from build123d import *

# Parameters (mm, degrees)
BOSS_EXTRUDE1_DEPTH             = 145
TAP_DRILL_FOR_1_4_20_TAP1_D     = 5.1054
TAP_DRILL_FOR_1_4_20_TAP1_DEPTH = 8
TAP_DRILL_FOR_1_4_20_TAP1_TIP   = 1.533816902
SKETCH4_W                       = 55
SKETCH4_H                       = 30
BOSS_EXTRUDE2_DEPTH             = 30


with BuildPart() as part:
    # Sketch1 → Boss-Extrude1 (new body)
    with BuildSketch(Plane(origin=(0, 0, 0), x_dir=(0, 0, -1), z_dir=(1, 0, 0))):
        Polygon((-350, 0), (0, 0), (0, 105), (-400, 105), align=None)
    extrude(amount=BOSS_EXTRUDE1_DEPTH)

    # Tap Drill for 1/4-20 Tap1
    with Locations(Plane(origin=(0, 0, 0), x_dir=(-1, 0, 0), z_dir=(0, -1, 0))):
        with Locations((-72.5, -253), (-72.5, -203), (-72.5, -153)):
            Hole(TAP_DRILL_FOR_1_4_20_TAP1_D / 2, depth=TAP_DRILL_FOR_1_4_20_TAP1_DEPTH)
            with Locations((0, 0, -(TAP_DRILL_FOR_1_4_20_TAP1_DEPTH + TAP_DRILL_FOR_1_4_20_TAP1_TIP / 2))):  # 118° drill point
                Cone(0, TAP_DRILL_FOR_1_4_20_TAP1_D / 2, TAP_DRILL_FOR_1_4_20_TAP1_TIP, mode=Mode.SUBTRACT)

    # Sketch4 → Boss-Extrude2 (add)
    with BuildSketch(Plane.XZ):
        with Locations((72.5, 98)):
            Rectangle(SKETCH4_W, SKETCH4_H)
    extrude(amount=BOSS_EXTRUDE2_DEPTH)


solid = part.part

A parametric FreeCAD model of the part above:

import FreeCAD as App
import Part
import Sketcher


def add_polygon(sketch, points):
    """Adds a closed chain of lines whose ends are joined by coincident constraints."""
    first, n = sketch.GeometryCount, len(points)
    for a, b in zip(points, points[1:] + points[:1]):
        sketch.addGeometry(Part.LineSegment(App.Vector(*a, 0), App.Vector(*b, 0)), False)
    for i in range(n):
        sketch.addConstraint(Sketcher.Constraint("Coincident", first + i, 2, first + (i + 1) % n, 1))

doc = App.newDocument("Part")
body = doc.addObject("PartDesign::Body", "Body")

# Sketch on YZ plane
sketch1 = doc.addObject("Sketcher::SketchObject", "Sketch")
body.addObject(sketch1)
sketch1.AttachmentSupport = (doc.YZ_Plane, [""])
sketch1.MapMode = "FlatFace"
add_polygon(sketch1, [(0, 350), (0, 0), (105, 0), (105, 400)])  # lines 0-3
sketch1.addConstraint([
    Sketcher.Constraint("Vertical", 0),
    Sketcher.Constraint("Horizontal", 1),
    Sketcher.Constraint("Vertical", 2),
    Sketcher.Constraint("Coincident", 0, 2, -1, 1),
    Sketcher.Constraint("DistanceX", 1, 1, 1, 2, 105.0),
    Sketcher.Constraint("DistanceY", 0, 2, 0, 1, 350.0),
    Sketcher.Constraint("DistanceY", 2, 1, 2, 2, 400.0),
])
pad1 = doc.addObject("PartDesign::Pad", "Pad")
body.addObject(pad1)
pad1.Profile = sketch1
pad1.Length = 145

# Sketch on XZ plane
sketch2 = doc.addObject("Sketcher::SketchObject", "Sketch001")
body.addObject(sketch2)
sketch2.AttachmentSupport = (doc.XZ_Plane, [""])
sketch2.MapMode = "FlatFace"
sketch2.addGeometry([
    Part.Circle(App.Vector(72.5, 253, 0), App.Vector(0, 0, 1), 2.6),
    Part.Circle(App.Vector(72.5, 203, 0), App.Vector(0, 0, 1), 2.6),
    Part.Circle(App.Vector(72.5, 153, 0), App.Vector(0, 0, 1), 2.6),
], False)
sketch2.addConstraint([
    Sketcher.Constraint("Equal", 0, 1),
    Sketcher.Constraint("Equal", 1, 2),
    Sketcher.Constraint("Vertical", 0, 3, 1, 3),
    Sketcher.Constraint("Vertical", 1, 3, 2, 3),
    Sketcher.Constraint("DistanceY", -1, 1, 0, 3, 253.0),
    Sketcher.Constraint("DistanceY", -1, 1, 1, 3, 203.0),
    Sketcher.Constraint("DistanceY", -1, 1, 2, 3, 153.0),
    Sketcher.Constraint("Diameter", 0, 5.1054),
    Sketcher.Constraint("DistanceX", -1, 1, 0, 3, 72.5),
])
doc.recompute()
hole = doc.addObject("PartDesign::Hole", "Hole")
body.addObject(hole)
hole.Profile = sketch2
hole.ThreadType = "None"
hole.Diameter = 5.1054
hole.DepthType = "Dimension"
hole.Depth = 8
hole.DrillPoint = "Angled"
hole.DrillPointAngle = 118

# Sketch on XZ plane
sketch3 = doc.addObject("Sketcher::SketchObject", "Sketch002")
body.addObject(sketch3)
sketch3.AttachmentSupport = (doc.XZ_Plane, [""])
sketch3.MapMode = "FlatFace"
add_polygon(sketch3, [(45, 113), (45, 83), (100, 83), (100, 113)])  # lines 0-3
sketch3.addConstraint([
    Sketcher.Constraint("Vertical", 0),
    Sketcher.Constraint("Horizontal", 1),
    Sketcher.Constraint("Vertical", 2),
    Sketcher.Constraint("Horizontal", 3),
    Sketcher.Constraint("DistanceX", 1, 1, 1, 2, 55.0),
    Sketcher.Constraint("DistanceY", 0, 2, 0, 1, 30.0),
    Sketcher.Constraint("DistanceX", -1, 1, 0, 2, 45.0),
    Sketcher.Constraint("DistanceY", -1, 1, 0, 2, 83.0),
])
pad2 = doc.addObject("PartDesign::Pad", "Pad001")
body.addObject(pad2)
pad2.Profile = sketch3
pad2.Length = 30

doc.recompute()
